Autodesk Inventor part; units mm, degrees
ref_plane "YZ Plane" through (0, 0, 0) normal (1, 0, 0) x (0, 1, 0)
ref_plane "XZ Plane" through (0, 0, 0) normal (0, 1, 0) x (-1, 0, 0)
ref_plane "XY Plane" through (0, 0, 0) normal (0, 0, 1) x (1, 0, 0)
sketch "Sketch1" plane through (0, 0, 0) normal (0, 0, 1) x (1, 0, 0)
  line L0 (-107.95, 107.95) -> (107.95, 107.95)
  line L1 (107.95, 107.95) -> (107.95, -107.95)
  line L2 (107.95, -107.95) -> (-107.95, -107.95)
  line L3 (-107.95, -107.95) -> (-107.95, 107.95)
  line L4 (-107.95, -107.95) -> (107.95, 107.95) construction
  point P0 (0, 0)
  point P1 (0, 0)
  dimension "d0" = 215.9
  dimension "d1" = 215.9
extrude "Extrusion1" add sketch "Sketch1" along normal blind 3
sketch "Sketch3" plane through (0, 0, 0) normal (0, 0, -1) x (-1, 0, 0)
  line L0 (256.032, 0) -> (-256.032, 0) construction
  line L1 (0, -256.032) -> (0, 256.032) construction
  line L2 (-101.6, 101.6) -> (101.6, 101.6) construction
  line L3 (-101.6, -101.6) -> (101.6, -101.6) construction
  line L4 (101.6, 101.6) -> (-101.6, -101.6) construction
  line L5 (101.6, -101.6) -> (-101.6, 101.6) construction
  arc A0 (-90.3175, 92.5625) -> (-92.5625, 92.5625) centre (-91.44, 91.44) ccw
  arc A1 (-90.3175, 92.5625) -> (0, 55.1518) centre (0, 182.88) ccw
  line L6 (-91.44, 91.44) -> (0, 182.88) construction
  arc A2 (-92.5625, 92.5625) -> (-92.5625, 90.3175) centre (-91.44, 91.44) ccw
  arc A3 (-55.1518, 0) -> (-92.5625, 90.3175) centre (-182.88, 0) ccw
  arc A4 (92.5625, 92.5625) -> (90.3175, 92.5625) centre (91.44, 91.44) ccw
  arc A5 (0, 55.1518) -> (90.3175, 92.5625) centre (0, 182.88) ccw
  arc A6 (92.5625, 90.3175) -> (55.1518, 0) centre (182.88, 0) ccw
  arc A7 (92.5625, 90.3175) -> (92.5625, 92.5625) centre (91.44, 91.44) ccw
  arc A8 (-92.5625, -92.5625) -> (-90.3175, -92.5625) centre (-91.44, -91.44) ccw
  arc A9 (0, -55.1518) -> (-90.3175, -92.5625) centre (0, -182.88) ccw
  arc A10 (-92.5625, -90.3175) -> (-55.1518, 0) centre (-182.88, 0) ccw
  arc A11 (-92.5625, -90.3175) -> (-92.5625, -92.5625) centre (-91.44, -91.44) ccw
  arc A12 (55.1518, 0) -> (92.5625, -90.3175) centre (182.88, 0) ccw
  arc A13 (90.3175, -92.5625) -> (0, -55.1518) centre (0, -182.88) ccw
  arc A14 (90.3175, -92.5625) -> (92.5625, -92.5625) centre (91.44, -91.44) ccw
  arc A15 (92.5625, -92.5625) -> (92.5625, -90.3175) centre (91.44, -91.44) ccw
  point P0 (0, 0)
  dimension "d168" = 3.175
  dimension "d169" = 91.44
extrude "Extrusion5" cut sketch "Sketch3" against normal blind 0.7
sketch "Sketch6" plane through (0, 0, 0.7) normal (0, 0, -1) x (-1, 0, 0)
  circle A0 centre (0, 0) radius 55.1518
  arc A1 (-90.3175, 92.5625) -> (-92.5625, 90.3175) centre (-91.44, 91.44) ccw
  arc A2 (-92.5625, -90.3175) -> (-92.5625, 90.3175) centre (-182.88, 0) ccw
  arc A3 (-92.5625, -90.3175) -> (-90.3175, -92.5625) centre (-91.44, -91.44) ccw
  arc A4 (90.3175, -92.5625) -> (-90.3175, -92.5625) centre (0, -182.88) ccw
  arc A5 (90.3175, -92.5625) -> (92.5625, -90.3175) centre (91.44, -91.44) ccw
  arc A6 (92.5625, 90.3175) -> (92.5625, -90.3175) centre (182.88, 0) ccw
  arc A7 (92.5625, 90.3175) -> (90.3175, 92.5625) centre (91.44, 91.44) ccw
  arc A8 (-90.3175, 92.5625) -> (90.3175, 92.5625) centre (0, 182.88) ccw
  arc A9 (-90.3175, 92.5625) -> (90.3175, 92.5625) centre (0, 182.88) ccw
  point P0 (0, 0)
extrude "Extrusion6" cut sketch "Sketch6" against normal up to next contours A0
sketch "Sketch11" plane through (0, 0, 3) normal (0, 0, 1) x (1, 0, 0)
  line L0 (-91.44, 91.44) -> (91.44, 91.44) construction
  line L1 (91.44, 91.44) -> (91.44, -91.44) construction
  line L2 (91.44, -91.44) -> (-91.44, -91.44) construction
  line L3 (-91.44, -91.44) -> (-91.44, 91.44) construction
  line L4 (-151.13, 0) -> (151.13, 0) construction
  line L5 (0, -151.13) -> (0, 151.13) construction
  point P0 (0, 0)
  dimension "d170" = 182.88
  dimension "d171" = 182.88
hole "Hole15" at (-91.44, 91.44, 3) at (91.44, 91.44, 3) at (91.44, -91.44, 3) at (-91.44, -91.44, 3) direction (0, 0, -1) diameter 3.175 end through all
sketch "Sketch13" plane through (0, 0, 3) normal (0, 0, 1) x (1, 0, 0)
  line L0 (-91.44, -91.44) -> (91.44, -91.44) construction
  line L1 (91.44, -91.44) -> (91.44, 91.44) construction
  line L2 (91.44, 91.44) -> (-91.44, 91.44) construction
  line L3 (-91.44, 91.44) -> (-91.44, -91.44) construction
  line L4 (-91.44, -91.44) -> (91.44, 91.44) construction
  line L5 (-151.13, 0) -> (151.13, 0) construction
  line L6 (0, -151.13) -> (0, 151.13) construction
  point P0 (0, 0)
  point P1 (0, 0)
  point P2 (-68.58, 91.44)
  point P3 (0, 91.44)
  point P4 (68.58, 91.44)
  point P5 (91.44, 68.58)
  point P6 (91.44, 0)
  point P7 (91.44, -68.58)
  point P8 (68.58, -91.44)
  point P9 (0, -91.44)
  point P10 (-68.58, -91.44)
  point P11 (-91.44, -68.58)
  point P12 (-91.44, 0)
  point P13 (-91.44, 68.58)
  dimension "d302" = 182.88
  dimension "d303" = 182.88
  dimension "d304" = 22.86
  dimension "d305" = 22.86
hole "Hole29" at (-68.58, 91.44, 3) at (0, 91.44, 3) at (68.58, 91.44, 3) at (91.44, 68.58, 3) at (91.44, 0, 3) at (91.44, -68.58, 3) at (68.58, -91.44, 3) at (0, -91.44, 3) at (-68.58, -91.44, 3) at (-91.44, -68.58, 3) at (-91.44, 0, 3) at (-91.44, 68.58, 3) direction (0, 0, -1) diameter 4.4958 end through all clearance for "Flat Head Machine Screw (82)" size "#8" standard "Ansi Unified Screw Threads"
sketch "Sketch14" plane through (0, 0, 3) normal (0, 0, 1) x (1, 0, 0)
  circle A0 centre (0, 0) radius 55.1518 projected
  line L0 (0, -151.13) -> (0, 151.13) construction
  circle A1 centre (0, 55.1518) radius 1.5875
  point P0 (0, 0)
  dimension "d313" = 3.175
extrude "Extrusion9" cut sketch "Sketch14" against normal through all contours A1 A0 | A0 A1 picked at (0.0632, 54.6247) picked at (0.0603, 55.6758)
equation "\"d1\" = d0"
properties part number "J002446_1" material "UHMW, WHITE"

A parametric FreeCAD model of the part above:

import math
import FreeCAD as App
import Part
import Sketcher

V = App.Vector
Q = App.Units.Quantity


def add_polygon(sketch, points):
    """Adds a closed chain of lines whose ends are joined by coincident constraints."""
    first, n = sketch.GeometryCount, len(points)
    for a, b in zip(points, points[1:] + points[:1]):
        sketch.addGeometry(Part.LineSegment(App.Vector(*a, 0), App.Vector(*b, 0)), False)
    for i in range(n):
        sketch.addConstraint(Sketcher.Constraint("Coincident", first + i, 2, first + (i + 1) % n, 1))

doc = App.newDocument("Part")
body = doc.addObject("PartDesign::Body", "Body")

sketch1 = body.newObject("Sketcher::SketchObject", "Sketch")
sketch1.AttachmentSupport = (doc.getObject("XY_Plane"), [""])
sketch1.MapMode = "FlatFace"
add_polygon(sketch1, [(107.95, 107.95), (-107.95, 107.95), (-107.95, -107.95), (107.95, -107.95)])
sketch1.addConstraint(Sketcher.Constraint("Horizontal", 0))
sketch1.addConstraint(Sketcher.Constraint("Vertical", 1))
sketch1.addConstraint(Sketcher.Constraint("Horizontal", 2))
sketch1.addConstraint(Sketcher.Constraint("Vertical", 3))
sketch1.addConstraint(Sketcher.Constraint("Symmetric", 0, 2, 2, 2, -1, 1))
sketch1.addConstraint(Sketcher.Constraint("Equal", 2, 1))
sketch1.addConstraint(Sketcher.Constraint("DistanceX", 0, 2, 0, 1, Q("8.5 in")))
pad1 = body.newObject("PartDesign::Pad", "Pad")
pad1.Profile = sketch1
pad1.Length = Q("0.1181102 in")

sketch2 = body.newObject("Sketcher::SketchObject", "Sketch001")
sketch2.AttachmentSupport = (doc.getObject("XY_Plane"), [""])
sketch2.MapMode = "FlatFace"
sketch2.addGeometry(Part.ArcOfCircle(Part.Circle(V(0, 182.88, 0), V(0, 0, 1), 127.7282), math.radians(-90), math.radians(-45)), False)
sketch2.addGeometry(Part.ArcOfCircle(Part.Circle(V(91.44, 91.44, 0), V(0, 0, 1), 1.587455), math.radians(-45), math.radians(135)), False)
sketch2.addGeometry(Part.ArcOfCircle(Part.Circle(V(182.88, 0, 0), V(0, 0, 1), 127.728233), math.radians(135), math.radians(180)), False)
sketch2.addGeometry(Part.ArcOfCircle(Part.Circle(V(182.88, 0, 0), V(0, 0, 1), 127.7282), math.radians(180), math.radians(225)), False)
sketch2.addGeometry(Part.ArcOfCircle(Part.Circle(V(91.44, -91.44, 0), V(0, 0, 1), 1.587455), math.radians(-135), math.radians(45)), False)
sketch2.addGeometry(Part.ArcOfCircle(Part.Circle(V(0, -182.88, 0), V(0, 0, 1), 127.728233), math.radians(45), math.radians(90)), False)
sketch2.addGeometry(Part.ArcOfCircle(Part.Circle(V(0, -182.88, 0), V(0, 0, 1), 127.7282), math.radians(90), math.radians(135)), False)
sketch2.addGeometry(Part.ArcOfCircle(Part.Circle(V(-91.44, -91.44, 0), V(0, 0, 1), 1.587455), math.radians(135), math.radians(315)), False)
sketch2.addGeometry(Part.ArcOfCircle(Part.Circle(V(-182.88, 0, 0), V(0, 0, 1), 127.728233), math.radians(-45), math.radians(0)), False)
sketch2.addGeometry(Part.ArcOfCircle(Part.Circle(V(-182.88, 0, 0), V(0, 0, 1), 127.7282), math.radians(0), math.radians(45)), False)
sketch2.addGeometry(Part.ArcOfCircle(Part.Circle(V(-91.44, 91.44, 0), V(0, 0, 1), 1.587455), math.radians(45), math.radians(225)), False)
sketch2.addGeometry(Part.ArcOfCircle(Part.Circle(V(0, 182.88, 0), V(0, 0, 1), 127.728233), math.radians(-135), math.radians(-90)), False)
sketch2.addConstraint(Sketcher.Constraint("Tangent", 0, 2, 1, 2))
sketch2.addConstraint(Sketcher.Constraint("Tangent", 1, 1, 2, 1))
sketch2.addConstraint(Sketcher.Constraint("Tangent", 2, 2, 3, 1))
sketch2.addConstraint(Sketcher.Constraint("Tangent", 3, 2, 4, 2))
sketch2.addConstraint(Sketcher.Constraint("Tangent", 4, 1, 5, 1))
sketch2.addConstraint(Sketcher.Constraint("Tangent", 5, 2, 6, 1))
sketch2.addConstraint(Sketcher.Constraint("Tangent", 6, 2, 7, 2))
sketch2.addConstraint(Sketcher.Constraint("Tangent", 7, 1, 8, 1))
sketch2.addConstraint(Sketcher.Constraint("Tangent", 8, 2, 9, 1))
sketch2.addConstraint(Sketcher.Constraint("Tangent", 9, 2, 10, 2))
sketch2.addConstraint(Sketcher.Constraint("Tangent", 10, 1, 11, 1))
sketch2.addConstraint(Sketcher.Constraint("Tangent", 11, 2, 0, 1))
sketch2.addConstraint(Sketcher.Constraint("Equal", 0, 2))
sketch2.addConstraint(Sketcher.Constraint("Equal", 2, 3))
sketch2.addConstraint(Sketcher.Constraint("Equal", 1, 4))
sketch2.addConstraint(Sketcher.Constraint("Equal", 3, 5))
sketch2.addConstraint(Sketcher.Constraint("Equal", 5, 6))
sketch2.addConstraint(Sketcher.Constraint("Equal", 4, 7))
sketch2.addConstraint(Sketcher.Constraint("Equal", 6, 8))
sketch2.addConstraint(Sketcher.Constraint("Equal", 8, 9))
sketch2.addConstraint(Sketcher.Constraint("Equal", 7, 10))
sketch2.addConstraint(Sketcher.Constraint("Equal", 9, 11))
sketch2.addConstraint(Sketcher.Constraint("Symmetric", 0, 3, 5, 3, -1, 1))
sketch2.addConstraint(Sketcher.Constraint("Symmetric", 4, 3, 7, 3, -2))
sketch2.addConstraint(Sketcher.Constraint("PointOnObject", 2, 2, -1))
sketch2.addConstraint(Sketcher.Constraint("PointOnObject", 5, 2, -2))
sketch2.addConstraint(Sketcher.Constraint("PointOnObject", 8, 2, -1))
sketch2.addConstraint(Sketcher.Constraint("PointOnObject", 11, 2, -2))
sketch2.addConstraint(Sketcher.Constraint("Horizontal", 1, 3, 10, 3))
sketch2.addConstraint(Sketcher.Constraint("Vertical", 1, 3, 4, 3))
sketch2.addConstraint(Sketcher.Constraint("Radius", 1, Q("0.0625 in")))
sketch2.addConstraint(Sketcher.Constraint("DistanceX", -1, 1, 1, 3, Q("3.6 in")))
sketch2.addConstraint(Sketcher.Constraint("DistanceY", -1, 1, 1, 3, Q("3.6 in")))
sketch2.addConstraint(Sketcher.Constraint("DistanceY", 1, 3, 0, 3, Q("3.6 in")))
pocket1 = body.newObject("PartDesign::Pocket", "Pocket")
pocket1.Profile = sketch2
pocket1.Length = 0.7
pocket1.Reversed = True

sketch3 = body.newObject("Sketcher::SketchObject", "Sketch002")
sketch3.AttachmentSupport = (doc.getObject("XY_Plane"), [""])
sketch3.MapMode = "FlatFace"
sketch3.AttachmentOffset = App.Placement(V(0, 0, 0.7), App.Rotation())
sketch3.addGeometry(Part.Circle(V(0, 0, 0), V(0, 0, 1), 55.1518), False)
sketch3.addConstraint(Sketcher.Constraint("Coincident", 0, 3, -1, 1))
sketch3.addConstraint(Sketcher.Constraint("Diameter", 0, Q("110.3036 mm")))
pocket2 = body.newObject("PartDesign::Pocket", "Pocket001")
pocket2.Profile = sketch3
pocket2.Type = "UpToFirst"
pocket2.Reversed = True

sketch4 = body.newObject("Sketcher::SketchObject", "Sketch003")
sketch4.AttachmentSupport = (doc.getObject("XY_Plane"), [""])
sketch4.MapMode = "FlatFace"
sketch4.AttachmentOffset = App.Placement(V(0, 0, 0.1181102 * 25.4), App.Rotation())
sketch4.addGeometry(Part.Circle(V(-91.44, 91.44, 0), V(0, 0, 1), 1.5875), False)
sketch4.addGeometry(Part.Circle(V(91.44, 91.44, 0), V(0, 0, 1), 1.5875), False)
sketch4.addGeometry(Part.Circle(V(91.44, -91.44, 0), V(0, 0, 1), 1.5875), False)
sketch4.addGeometry(Part.Circle(V(-91.44, -91.44, 0), V(0, 0, 1), 1.5875), False)
sketch4.addConstraint(Sketcher.Constraint("Equal", 0, 1))
sketch4.addConstraint(Sketcher.Constraint("Equal", 1, 2))
sketch4.addConstraint(Sketcher.Constraint("Equal", 2, 3))
sketch4.addConstraint(Sketcher.Constraint("Symmetric", 0, 3, 2, 3, -1, 1))
sketch4.addConstraint(Sketcher.Constraint("Symmetric", 1, 3, 3, 3, -1, 1))
sketch4.addConstraint(Sketcher.Constraint("Symmetric", 0, 3, 1, 3, -2))
sketch4.addConstraint(Sketcher.Constraint("Diameter", 0, Q("0.125 in")))
sketch4.addConstraint(Sketcher.Constraint("DistanceX", 0, 3, -1, 1, Q("3.6 in")))
sketch4.addConstraint(Sketcher.Constraint("DistanceY", -1, 1, 0, 3, Q("3.6 in")))
doc.recompute()
hole = body.newObject("PartDesign::Hole", "Hole")
hole.Profile = sketch4
hole.ThreadType = "None"
hole.Diameter = Q("0.125 in")
hole.DepthType = "ThroughAll"

sketch5 = body.newObject("Sketcher::SketchObject", "Sketch004")
sketch5.AttachmentSupport = (doc.getObject("XY_Plane"), [""])
sketch5.MapMode = "FlatFace"
sketch5.AttachmentOffset = App.Placement(V(0, 0, 0.1181102 * 25.4), App.Rotation())
sketch5.addGeometry(Part.Circle(V(-68.58, 91.44, 0), V(0, 0, 1), 2.2479), False)
sketch5.addGeometry(Part.Circle(V(0, 91.44, 0), V(0, 0, 1), 2.2479), False)
sketch5.addGeometry(Part.Circle(V(68.58, 91.44, 0), V(0, 0, 1), 2.2479), False)
sketch5.addGeometry(Part.Circle(V(91.44, 68.58, 0), V(0, 0, 1), 2.2479), False)
sketch5.addGeometry(Part.Circle(V(91.44, 0, 0), V(0, 0, 1), 2.2479), False)
sketch5.addGeometry(Part.Circle(V(91.44, -68.58, 0), V(0, 0, 1), 2.2479), False)
sketch5.addGeometry(Part.Circle(V(68.58, -91.44, 0), V(0, 0, 1), 2.2479), False)
sketch5.addGeometry(Part.Circle(V(0, -91.44, 0), V(0, 0, 1), 2.2479), False)
sketch5.addGeometry(Part.Circle(V(-68.58, -91.44, 0), V(0, 0, 1), 2.2479), False)
sketch5.addGeometry(Part.Circle(V(-91.44, -68.58, 0), V(0, 0, 1), 2.2479), False)
sketch5.addGeometry(Part.Circle(V(-91.44, 0, 0), V(0, 0, 1), 2.2479), False)
sketch5.addGeometry(Part.Circle(V(-91.44, 68.58, 0), V(0, 0, 1), 2.2479), False)
sketch5.addConstraint(Sketcher.Constraint("Equal", 0, 1))
sketch5.addConstraint(Sketcher.Constraint("Equal", 1, 2))
sketch5.addConstraint(Sketcher.Constraint("Equal", 2, 3))
sketch5.addConstraint(Sketcher.Constraint("Equal", 3, 4))
sketch5.addConstraint(Sketcher.Constraint("Equal", 4, 5))
sketch5.addConstraint(Sketcher.Constraint("Equal", 5, 6))
sketch5.addConstraint(Sketcher.Constraint("Equal", 6, 7))
sketch5.addConstraint(Sketcher.Constraint("Equal", 7, 8))
sketch5.addConstraint(Sketcher.Constraint("Equal", 8, 9))
sketch5.addConstraint(Sketcher.Constraint("Equal", 9, 10))
sketch5.addConstraint(Sketcher.Constraint("Equal", 10, 11))
sketch5.addConstraint(Sketcher.Constraint("Symmetric", 0, 3, 6, 3, -1, 1))
sketch5.addConstraint(Sketcher.Constraint("Symmetric", 1, 3, 7, 3, -1, 1))
sketch5.addConstraint(Sketcher.Constraint("Symmetric", 2, 3, 8, 3, -1, 1))
sketch5.addConstraint(Sketcher.Constraint("Symmetric", 3, 3, 9, 3, -1, 1))
sketch5.addConstraint(Sketcher.Constraint("Symmetric", 4, 3, 10, 3, -1, 1))
sketch5.addConstraint(Sketcher.Constraint("Symmetric", 5, 3, 11, 3, -1, 1))
sketch5.addConstraint(Sketcher.Constraint("Symmetric", 0, 3, 2, 3, -2))
sketch5.addConstraint(Sketcher.Constraint("Symmetric", 5, 3, 9, 3, -2))
sketch5.addConstraint(Sketcher.Constraint("PointOnObject", 1, 3, -2))
sketch5.addConstraint(Sketcher.Constraint("PointOnObject", 4, 3, -1))
sketch5.addConstraint(Sketcher.Constraint("Horizontal", 0, 3, 1, 3))
sketch5.addConstraint(Sketcher.Constraint("Vertical", 3, 3, 4, 3))
sketch5.addConstraint(Sketcher.Constraint("Diameter", 0, Q("0.177 in")))
sketch5.addConstraint(Sketcher.Constraint("DistanceX", 0, 3, -1, 1, Q("2.7 in")))
sketch5.addConstraint(Sketcher.Constraint("DistanceY", -1, 1, 0, 3, Q("3.6 in")))
sketch5.addConstraint(Sketcher.Constraint("DistanceX", -1, 1, 3, 3, Q("3.6 in")))
sketch5.addConstraint(Sketcher.Constraint("DistanceY", -1, 1, 3, 3, Q("2.7 in")))
doc.recompute()
hole2 = body.newObject("PartDesign::Hole", "Hole001")
hole2.Profile = sketch5
hole2.ThreadType = "None"
hole2.Diameter = Q("0.177 in")
hole2.DepthType = "ThroughAll"

sketch6 = body.newObject("Sketcher::SketchObject", "Sketch005")
sketch6.AttachmentSupport = (doc.getObject("XY_Plane"), [""])
sketch6.MapMode = "FlatFace"
sketch6.AttachmentOffset = App.Placement(V(0, 0, 0.1181102 * 25.4), App.Rotation())
sketch6.addGeometry(Part.Circle(V(0, 55.1518, 0), V(0, 0, 1), 1.5875), False)
sketch6.addConstraint(Sketcher.Constraint("PointOnObject", 0, 3, -2))
sketch6.addConstraint(Sketcher.Constraint("Diameter", 0, Q("0.125 in")))
sketch6.addConstraint(Sketcher.Constraint("DistanceY", -1, 1, 0, 3, Q("55.1518 mm")))
pocket3 = body.newObject("PartDesign::Pocket", "Pocket002")
pocket3.Profile = sketch6
pocket3.Type = "ThroughAll"

doc.recompute()
